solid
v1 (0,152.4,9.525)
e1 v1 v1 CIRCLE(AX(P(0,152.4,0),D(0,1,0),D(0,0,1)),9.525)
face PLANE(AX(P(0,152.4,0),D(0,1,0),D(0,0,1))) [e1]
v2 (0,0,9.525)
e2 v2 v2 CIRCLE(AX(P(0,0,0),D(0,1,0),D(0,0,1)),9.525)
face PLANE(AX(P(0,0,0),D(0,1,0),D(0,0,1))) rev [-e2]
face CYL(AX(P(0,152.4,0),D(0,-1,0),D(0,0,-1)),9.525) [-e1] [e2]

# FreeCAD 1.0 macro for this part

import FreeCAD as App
import Part
import Sketcher
Q = App.Units.Quantity

doc = App.newDocument("Part")
body = doc.addObject("PartDesign::Body", "Body")

# Sketch on XZ plane
sketch1 = doc.addObject("Sketcher::SketchObject", "Sketch")
body.addObject(sketch1)
sketch1.AttachmentSupport = (doc.XZ_Plane, [""])
sketch1.MapMode = "FlatFace"
sketch1.addGeometry(Part.Circle(App.Vector(0, 0, 0), App.Vector(0, 0, 1), 10), False)
sketch1.addConstraint([
    Sketcher.Constraint("Coincident", 0, 3, -1, 1),
    Sketcher.Constraint("Diameter", 0, Q("0.75 in")),
])
pad1 = doc.addObject("PartDesign::Pad", "Pad")
body.addObject(pad1)
pad1.Profile = sketch1
pad1.Length = Q("6 in")
pad1.Reversed = True

doc.recompute()
